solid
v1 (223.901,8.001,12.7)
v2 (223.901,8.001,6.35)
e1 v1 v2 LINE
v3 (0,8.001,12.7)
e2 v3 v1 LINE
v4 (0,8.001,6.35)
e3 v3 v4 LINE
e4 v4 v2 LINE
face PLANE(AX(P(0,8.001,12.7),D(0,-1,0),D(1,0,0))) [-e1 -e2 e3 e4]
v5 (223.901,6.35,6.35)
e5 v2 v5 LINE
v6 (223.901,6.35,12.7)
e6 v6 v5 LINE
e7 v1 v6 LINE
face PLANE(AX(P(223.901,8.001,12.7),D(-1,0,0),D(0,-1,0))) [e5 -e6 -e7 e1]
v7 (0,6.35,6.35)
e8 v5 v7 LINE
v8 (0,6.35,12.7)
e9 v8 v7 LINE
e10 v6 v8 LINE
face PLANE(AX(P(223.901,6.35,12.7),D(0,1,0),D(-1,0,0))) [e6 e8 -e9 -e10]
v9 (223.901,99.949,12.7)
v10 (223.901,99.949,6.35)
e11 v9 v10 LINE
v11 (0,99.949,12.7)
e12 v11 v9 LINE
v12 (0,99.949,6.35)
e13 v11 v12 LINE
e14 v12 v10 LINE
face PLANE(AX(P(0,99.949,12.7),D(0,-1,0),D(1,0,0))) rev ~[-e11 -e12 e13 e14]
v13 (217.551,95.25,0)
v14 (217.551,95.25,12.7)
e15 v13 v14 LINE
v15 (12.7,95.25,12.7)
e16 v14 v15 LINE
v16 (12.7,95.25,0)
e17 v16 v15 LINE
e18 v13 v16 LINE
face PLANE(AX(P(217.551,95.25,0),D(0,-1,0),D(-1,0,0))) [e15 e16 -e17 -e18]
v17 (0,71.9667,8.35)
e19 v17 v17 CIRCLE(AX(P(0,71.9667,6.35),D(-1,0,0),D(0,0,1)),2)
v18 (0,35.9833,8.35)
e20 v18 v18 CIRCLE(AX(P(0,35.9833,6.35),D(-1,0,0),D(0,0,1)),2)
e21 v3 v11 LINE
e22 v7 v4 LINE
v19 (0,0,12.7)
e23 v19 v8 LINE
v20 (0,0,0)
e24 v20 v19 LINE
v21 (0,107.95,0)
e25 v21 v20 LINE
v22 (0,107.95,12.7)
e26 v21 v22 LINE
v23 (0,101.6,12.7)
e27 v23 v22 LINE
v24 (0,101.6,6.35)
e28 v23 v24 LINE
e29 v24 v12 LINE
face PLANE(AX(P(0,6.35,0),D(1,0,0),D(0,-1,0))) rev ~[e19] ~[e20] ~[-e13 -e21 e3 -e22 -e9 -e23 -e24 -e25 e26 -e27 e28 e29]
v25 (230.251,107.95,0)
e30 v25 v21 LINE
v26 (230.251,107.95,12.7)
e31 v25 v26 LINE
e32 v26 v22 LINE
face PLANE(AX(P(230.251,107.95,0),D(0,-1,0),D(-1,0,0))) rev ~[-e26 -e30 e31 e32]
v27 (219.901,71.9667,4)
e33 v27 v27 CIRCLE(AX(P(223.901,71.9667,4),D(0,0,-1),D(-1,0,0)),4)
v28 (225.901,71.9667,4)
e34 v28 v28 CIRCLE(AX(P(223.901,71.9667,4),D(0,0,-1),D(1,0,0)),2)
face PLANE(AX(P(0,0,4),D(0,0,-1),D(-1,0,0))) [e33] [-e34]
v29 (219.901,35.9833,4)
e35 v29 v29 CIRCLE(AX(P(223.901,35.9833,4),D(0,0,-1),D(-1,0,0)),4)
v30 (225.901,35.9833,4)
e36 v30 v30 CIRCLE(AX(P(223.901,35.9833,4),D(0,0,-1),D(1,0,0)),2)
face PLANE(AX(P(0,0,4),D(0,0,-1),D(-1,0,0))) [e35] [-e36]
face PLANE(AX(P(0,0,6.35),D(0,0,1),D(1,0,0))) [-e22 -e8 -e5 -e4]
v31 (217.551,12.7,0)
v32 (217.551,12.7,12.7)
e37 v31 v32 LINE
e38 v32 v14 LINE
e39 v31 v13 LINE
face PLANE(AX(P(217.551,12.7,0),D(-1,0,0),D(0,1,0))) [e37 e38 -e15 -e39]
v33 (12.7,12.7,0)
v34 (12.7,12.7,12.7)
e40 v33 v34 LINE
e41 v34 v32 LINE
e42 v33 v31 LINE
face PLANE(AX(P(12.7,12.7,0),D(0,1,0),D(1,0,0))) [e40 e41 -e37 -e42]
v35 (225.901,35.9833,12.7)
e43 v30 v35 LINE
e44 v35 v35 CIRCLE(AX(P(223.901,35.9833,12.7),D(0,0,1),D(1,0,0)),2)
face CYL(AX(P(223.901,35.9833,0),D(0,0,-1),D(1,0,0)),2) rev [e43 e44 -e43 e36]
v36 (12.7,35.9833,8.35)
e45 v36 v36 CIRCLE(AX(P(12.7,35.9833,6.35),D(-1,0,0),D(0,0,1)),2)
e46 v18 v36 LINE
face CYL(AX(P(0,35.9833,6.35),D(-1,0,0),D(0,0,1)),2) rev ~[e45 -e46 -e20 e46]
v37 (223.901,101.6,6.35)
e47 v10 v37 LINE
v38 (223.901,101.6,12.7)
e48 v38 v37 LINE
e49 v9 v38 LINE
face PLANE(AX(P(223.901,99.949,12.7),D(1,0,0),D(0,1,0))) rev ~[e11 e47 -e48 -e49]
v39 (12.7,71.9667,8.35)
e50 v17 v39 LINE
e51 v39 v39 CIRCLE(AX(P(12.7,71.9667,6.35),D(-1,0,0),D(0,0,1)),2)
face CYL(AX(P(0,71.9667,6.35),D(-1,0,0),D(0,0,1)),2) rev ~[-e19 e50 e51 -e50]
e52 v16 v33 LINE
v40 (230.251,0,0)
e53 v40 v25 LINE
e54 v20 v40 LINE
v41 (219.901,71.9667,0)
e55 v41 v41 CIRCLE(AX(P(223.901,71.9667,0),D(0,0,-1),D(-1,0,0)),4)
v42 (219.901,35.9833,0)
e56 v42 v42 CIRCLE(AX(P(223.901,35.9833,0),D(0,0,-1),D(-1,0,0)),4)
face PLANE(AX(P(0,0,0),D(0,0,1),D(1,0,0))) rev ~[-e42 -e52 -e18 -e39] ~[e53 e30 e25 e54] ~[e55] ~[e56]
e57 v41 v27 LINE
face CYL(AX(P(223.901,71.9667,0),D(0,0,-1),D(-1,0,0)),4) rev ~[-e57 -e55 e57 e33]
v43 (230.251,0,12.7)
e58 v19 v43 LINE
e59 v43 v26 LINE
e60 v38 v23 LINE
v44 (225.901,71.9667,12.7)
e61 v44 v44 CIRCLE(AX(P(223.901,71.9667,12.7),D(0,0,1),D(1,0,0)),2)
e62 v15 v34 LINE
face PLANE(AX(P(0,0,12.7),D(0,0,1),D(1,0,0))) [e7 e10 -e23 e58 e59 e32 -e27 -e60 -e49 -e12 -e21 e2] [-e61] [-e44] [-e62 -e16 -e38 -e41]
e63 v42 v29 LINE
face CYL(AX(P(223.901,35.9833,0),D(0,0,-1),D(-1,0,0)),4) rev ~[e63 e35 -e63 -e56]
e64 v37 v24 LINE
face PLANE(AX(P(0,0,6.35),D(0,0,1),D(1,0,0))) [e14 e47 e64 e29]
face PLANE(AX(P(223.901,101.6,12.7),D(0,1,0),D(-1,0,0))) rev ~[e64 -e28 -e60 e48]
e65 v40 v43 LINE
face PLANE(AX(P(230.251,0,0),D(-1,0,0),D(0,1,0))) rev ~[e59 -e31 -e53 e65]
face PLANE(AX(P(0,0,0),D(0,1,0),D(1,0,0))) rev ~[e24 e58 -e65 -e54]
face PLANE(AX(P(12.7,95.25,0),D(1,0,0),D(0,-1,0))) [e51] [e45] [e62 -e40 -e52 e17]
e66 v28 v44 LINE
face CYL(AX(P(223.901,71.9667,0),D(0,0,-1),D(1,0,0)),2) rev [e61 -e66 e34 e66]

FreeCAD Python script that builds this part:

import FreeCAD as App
import Part
import Sketcher
Q = App.Units.Quantity


def add_polygon(sketch, points):
    """Adds a closed chain of lines whose ends are joined by coincident constraints."""
    first, n = sketch.GeometryCount, len(points)
    for a, b in zip(points, points[1:] + points[:1]):
        sketch.addGeometry(Part.LineSegment(App.Vector(*a, 0), App.Vector(*b, 0)), False)
    for i in range(n):
        sketch.addConstraint(Sketcher.Constraint("Coincident", first + i, 2, first + (i + 1) % n, 1))

doc = App.newDocument("Part")
body = doc.addObject("PartDesign::Body", "Body")

# Sketch on XY plane
sketch1 = doc.addObject("Sketcher::SketchObject", "Sketch")
body.addObject(sketch1)
sketch1.AttachmentSupport = (doc.XY_Plane, [""])
sketch1.MapMode = "FlatFace"
add_polygon(sketch1, [(0, 0), (230.3, 0), (230.3, 108), (0, 108)])  # lines 0-3
sketch1.addGeometry(Part.Circle(App.Vector(223.9, 36, 0), App.Vector(0, 0, 1), 2), False)  # 4
sketch1.addGeometry(Part.Circle(App.Vector(223.9, 72, 0), App.Vector(0, 0, 1), 2), False)  # 5
sketch1.addConstraint([
    Sketcher.Constraint("Horizontal", 0),
    Sketcher.Constraint("Vertical", 1),
    Sketcher.Constraint("Horizontal", 2),
    Sketcher.Constraint("Vertical", 3),
    Sketcher.Constraint("Coincident", 3, 2, -1, 1),
    Sketcher.Constraint("Equal", 4, 5),
    Sketcher.Constraint("Vertical", 4, 3, 5, 3),
    Sketcher.Constraint("DistanceY", 1, 1, 1, 2, Q("4.25 in")),
    Sketcher.Constraint("Diameter", 4, Q("4 mm")),
    Sketcher.Constraint("DistanceX", 0, 1, 0, 2, Q("9.065 in")),
    Sketcher.Constraint("DistanceX", 4, 3, 0, 2, Q("0.25 in")),
    Sketcher.Constraint("DistanceY", -1, 1, 4, 3, Q("35.9833 mm")),
    Sketcher.Constraint("DistanceY", 4, 3, 5, 3, Q("35.9834 mm")),
])
pad1 = doc.addObject("PartDesign::Pad", "Pad")
body.addObject(pad1)
pad1.Profile = sketch1
pad1.Length = Q("0.5 in")

# Sketch on XY plane
sketch2 = doc.addObject("Sketcher::SketchObject", "Sketch001")
body.addObject(sketch2)
sketch2.AttachmentSupport = (doc.XY_Plane, [""])
sketch2.MapMode = "FlatFace"
sketch2.addGeometry([
    Part.Circle(App.Vector(223.9, 72, 0), App.Vector(0, 0, 1), 4),
    Part.Circle(App.Vector(223.9, 72, 0), App.Vector(0, 0, 1), 2),
    Part.Circle(App.Vector(223.9, 36, 0), App.Vector(0, 0, 1), 4),
    Part.Circle(App.Vector(223.9, 36, 0), App.Vector(0, 0, 1), 2),
], False)
sketch2.addConstraint([
    Sketcher.Constraint("Coincident", 1, 3, 0, 3),
    Sketcher.Constraint("Coincident", 3, 3, 2, 3),
    Sketcher.Constraint("Equal", 0, 2),
    Sketcher.Constraint("Equal", 1, 3),
    Sketcher.Constraint("Vertical", 1, 3, 2, 3),
    Sketcher.Constraint("Diameter", 0, Q("8 mm")),
    Sketcher.Constraint("Diameter", 1, Q("4 mm")),
    Sketcher.Constraint("DistanceX", -1, 1, 0, 3, Q("8.815 in")),
    Sketcher.Constraint("DistanceY", -1, 1, 0, 3, Q("71.9667 mm")),
    Sketcher.Constraint("DistanceY", -1, 1, 2, 3, Q("35.9833 mm")),
])
pocket1 = doc.addObject("PartDesign::Pocket", "Pocket")
body.addObject(pocket1)
pocket1.Profile = sketch2
pocket1.Length = 4
pocket1.Reversed = True

# Sketch on XY plane
sketch3 = doc.addObject("Sketcher::SketchObject", "Sketch002")
body.addObject(sketch3)
sketch3.AttachmentSupport = (doc.XY_Plane, [""])
sketch3.MapMode = "FlatFace"
sketch3.AttachmentOffset = App.Placement(App.Vector(0, 0, 0.5 * 25.4), App.Rotation())
add_polygon(sketch3, [(223.9, 99.9), (223.9, 101.6), (0, 101.6), (0, 99.9)])  # lines 0-3
add_polygon(sketch3, [(0, 6.3), (223.9, 6.3), (223.9, 8), (0, 8)])  # lines 4-7
sketch3.addConstraint([
    Sketcher.Constraint("Vertical", 0),
    Sketcher.Constraint("Horizontal", 1),
    Sketcher.Constraint("Vertical", 2),
    Sketcher.Constraint("Horizontal", 3),
    Sketcher.Constraint("Horizontal", 4),
    Sketcher.Constraint("Vertical", 5),
    Sketcher.Constraint("Horizontal", 6),
    Sketcher.Constraint("Vertical", 7),
    Sketcher.Constraint("PointOnObject", 1, 2, -2),
    Sketcher.Constraint("PointOnObject", 6, 2, -2),
    Sketcher.Constraint("Vertical", 3, 2, 4, 2),
    Sketcher.Constraint("Equal", 2, 5),
    Sketcher.Constraint("DistanceX", 1, 2, 1, 1, Q("8.815 in")),
    Sketcher.Constraint("DistanceY", 0, 1, 0, 2, Q("0.065 in")),
    Sketcher.Constraint("DistanceY", -1, 1, 4, 2, Q("0.25 in")),
    Sketcher.Constraint("DistanceY", -1, 1, 0, 2, Q("4 in")),
])
pocket2 = doc.addObject("PartDesign::Pocket", "Pocket001")
body.addObject(pocket2)
pocket2.Profile = sketch3
pocket2.Length = Q("0.25 in")

# Sketch on YZ plane
sketch4 = doc.addObject("Sketcher::SketchObject", "Sketch003")
body.addObject(sketch4)
sketch4.AttachmentSupport = (doc.YZ_Plane, [""])
sketch4.MapMode = "FlatFace"
sketch4.addGeometry([
    Part.Circle(App.Vector(36, 6.3, 0), App.Vector(0, 0, 1), 2),
    Part.Circle(App.Vector(72, 6.3, 0), App.Vector(0, 0, 1), 2),
], False)
sketch4.addConstraint([
    Sketcher.Constraint("Equal", 0, 1),
    Sketcher.Constraint("Horizontal", 0, 3, 1, 3),
    Sketcher.Constraint("Diameter", 0, Q("4 mm")),
    Sketcher.Constraint("DistanceY", -1, 1, 0, 3, Q("0.25 in")),
    Sketcher.Constraint("DistanceX", -1, 1, 0, 3, Q("35.9833 mm")),
    Sketcher.Constraint("DistanceX", 0, 3, 1, 3, Q("35.9834 mm")),
])
pocket3 = doc.addObject("PartDesign::Pocket", "Pocket002")
body.addObject(pocket3)
pocket3.Profile = sketch4
pocket3.Length = Q("0.5 in")
pocket3.Reversed = True

# Sketch on XY plane
sketch5 = doc.addObject("Sketcher::SketchObject", "Sketch004")
body.addObject(sketch5)
sketch5.AttachmentSupport = (doc.XY_Plane, [""])
sketch5.MapMode = "FlatFace"
add_polygon(sketch5, [(218, 13), (13, 13), (13, 95), (218, 95)])  # lines 0-3
sketch5.addConstraint([
    Sketcher.Constraint("Horizontal", 0),
    Sketcher.Constraint("Vertical", 1),
    Sketcher.Constraint("Horizontal", 2),
    Sketcher.Constraint("Vertical", 3),
    Sketcher.Constraint("DistanceY", 1, 1, 1, 2, Q("3.25 in")),
    Sketcher.Constraint("DistanceX", -1, 1, 0, 2, Q("0.5 in")),
    Sketcher.Constraint("DistanceY", -1, 1, 0, 2, Q("0.5 in")),
    Sketcher.Constraint("DistanceX", 0, 2, 0, 1, Q("8.065 in")),
])
pocket4 = doc.addObject("PartDesign::Pocket", "Pocket003")
body.addObject(pocket4)
pocket4.Profile = sketch5
pocket4.Length = Q("0.5 in")
pocket4.Reversed = True

doc.recompute()
